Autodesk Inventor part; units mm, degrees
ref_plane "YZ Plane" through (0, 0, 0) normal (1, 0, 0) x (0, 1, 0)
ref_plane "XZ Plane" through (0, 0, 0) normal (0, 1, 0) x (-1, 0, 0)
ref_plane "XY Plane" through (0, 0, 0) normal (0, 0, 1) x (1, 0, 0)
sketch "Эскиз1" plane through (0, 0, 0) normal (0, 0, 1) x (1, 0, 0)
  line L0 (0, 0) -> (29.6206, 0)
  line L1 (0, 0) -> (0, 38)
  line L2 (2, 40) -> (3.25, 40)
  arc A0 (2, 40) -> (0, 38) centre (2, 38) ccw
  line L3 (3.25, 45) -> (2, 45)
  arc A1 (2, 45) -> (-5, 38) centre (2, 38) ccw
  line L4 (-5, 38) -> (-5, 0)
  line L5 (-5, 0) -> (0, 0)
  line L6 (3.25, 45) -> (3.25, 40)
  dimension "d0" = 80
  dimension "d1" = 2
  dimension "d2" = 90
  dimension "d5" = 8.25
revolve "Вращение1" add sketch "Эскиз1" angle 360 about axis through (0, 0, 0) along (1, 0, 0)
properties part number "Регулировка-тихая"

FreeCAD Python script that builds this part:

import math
import FreeCAD as App
import Part
import Sketcher
from FreeCAD import Vector

doc = App.newDocument("Part")
body = doc.addObject("PartDesign::Body", "Body")

sketch1 = body.newObject("Sketcher::SketchObject", "Sketch")
sketch1.AttachmentSupport = (doc.getObject("XY_Plane"), [""])
sketch1.MapMode = "FlatFace"
sketch1.addGeometry([
    Part.LineSegment(Vector(-5, 0, 0), Vector(0, 0, 0)),
    Part.LineSegment(Vector(0, 0, 0), Vector(0, 38, 0)),
    Part.ArcOfCircle(Part.Circle(Vector(2, 38, 0), Vector(0, 0, 1), 2), math.radians(90), math.radians(180)),
    Part.LineSegment(Vector(2, 40, 0), Vector(3.25, 40, 0)),
    Part.LineSegment(Vector(3.25, 40, 0), Vector(3.25, 45, 0)),
    Part.LineSegment(Vector(3.25, 45, 0), Vector(2, 45, 0)),
    Part.ArcOfCircle(Part.Circle(Vector(2, 38, 0), Vector(0, 0, 1), 7), math.radians(90), math.radians(180)),
    Part.LineSegment(Vector(-5, 38, 0), Vector(-5, 0, 0)),
], False)
sketch1.addConstraint([
    Sketcher.Constraint("Coincident", 0, 2, 1, 1),
    Sketcher.Constraint("Tangent", 1, 2, 2, 2),
    Sketcher.Constraint("Tangent", 2, 1, 3, 1),
    Sketcher.Constraint("Coincident", 3, 2, 4, 1),
    Sketcher.Constraint("Coincident", 4, 2, 5, 1),
    Sketcher.Constraint("Tangent", 5, 2, 6, 1),
    Sketcher.Constraint("Tangent", 6, 2, 7, 1),
    Sketcher.Constraint("Coincident", 7, 2, 0, 1),
    Sketcher.Constraint("Horizontal", 0),
    Sketcher.Constraint("Vertical", 1),
    Sketcher.Constraint("Horizontal", 3),
    Sketcher.Constraint("Vertical", 4),
    Sketcher.Constraint("Horizontal", 5),
    Sketcher.Constraint("Vertical", 7),
    Sketcher.Constraint("Coincident", 0, 2, -1, 1),
    Sketcher.Constraint("Coincident", 6, 3, 2, 3),
    Sketcher.Constraint("Radius", 2, 2.0),
    Sketcher.Constraint("Radius", 6, 7.0),
    Sketcher.Constraint("DistanceY", 1, 1, 1, 2, 38.0),
    Sketcher.Constraint("DistanceX", 6, 2, 3, 2, 8.25),
])
revolution = body.newObject("PartDesign::Revolution", "Revolution")
revolution.Profile = sketch1
revolution.ReferenceAxis = (sketch1, ["H_Axis"])
revolution.Angle = 360

doc.recompute()
